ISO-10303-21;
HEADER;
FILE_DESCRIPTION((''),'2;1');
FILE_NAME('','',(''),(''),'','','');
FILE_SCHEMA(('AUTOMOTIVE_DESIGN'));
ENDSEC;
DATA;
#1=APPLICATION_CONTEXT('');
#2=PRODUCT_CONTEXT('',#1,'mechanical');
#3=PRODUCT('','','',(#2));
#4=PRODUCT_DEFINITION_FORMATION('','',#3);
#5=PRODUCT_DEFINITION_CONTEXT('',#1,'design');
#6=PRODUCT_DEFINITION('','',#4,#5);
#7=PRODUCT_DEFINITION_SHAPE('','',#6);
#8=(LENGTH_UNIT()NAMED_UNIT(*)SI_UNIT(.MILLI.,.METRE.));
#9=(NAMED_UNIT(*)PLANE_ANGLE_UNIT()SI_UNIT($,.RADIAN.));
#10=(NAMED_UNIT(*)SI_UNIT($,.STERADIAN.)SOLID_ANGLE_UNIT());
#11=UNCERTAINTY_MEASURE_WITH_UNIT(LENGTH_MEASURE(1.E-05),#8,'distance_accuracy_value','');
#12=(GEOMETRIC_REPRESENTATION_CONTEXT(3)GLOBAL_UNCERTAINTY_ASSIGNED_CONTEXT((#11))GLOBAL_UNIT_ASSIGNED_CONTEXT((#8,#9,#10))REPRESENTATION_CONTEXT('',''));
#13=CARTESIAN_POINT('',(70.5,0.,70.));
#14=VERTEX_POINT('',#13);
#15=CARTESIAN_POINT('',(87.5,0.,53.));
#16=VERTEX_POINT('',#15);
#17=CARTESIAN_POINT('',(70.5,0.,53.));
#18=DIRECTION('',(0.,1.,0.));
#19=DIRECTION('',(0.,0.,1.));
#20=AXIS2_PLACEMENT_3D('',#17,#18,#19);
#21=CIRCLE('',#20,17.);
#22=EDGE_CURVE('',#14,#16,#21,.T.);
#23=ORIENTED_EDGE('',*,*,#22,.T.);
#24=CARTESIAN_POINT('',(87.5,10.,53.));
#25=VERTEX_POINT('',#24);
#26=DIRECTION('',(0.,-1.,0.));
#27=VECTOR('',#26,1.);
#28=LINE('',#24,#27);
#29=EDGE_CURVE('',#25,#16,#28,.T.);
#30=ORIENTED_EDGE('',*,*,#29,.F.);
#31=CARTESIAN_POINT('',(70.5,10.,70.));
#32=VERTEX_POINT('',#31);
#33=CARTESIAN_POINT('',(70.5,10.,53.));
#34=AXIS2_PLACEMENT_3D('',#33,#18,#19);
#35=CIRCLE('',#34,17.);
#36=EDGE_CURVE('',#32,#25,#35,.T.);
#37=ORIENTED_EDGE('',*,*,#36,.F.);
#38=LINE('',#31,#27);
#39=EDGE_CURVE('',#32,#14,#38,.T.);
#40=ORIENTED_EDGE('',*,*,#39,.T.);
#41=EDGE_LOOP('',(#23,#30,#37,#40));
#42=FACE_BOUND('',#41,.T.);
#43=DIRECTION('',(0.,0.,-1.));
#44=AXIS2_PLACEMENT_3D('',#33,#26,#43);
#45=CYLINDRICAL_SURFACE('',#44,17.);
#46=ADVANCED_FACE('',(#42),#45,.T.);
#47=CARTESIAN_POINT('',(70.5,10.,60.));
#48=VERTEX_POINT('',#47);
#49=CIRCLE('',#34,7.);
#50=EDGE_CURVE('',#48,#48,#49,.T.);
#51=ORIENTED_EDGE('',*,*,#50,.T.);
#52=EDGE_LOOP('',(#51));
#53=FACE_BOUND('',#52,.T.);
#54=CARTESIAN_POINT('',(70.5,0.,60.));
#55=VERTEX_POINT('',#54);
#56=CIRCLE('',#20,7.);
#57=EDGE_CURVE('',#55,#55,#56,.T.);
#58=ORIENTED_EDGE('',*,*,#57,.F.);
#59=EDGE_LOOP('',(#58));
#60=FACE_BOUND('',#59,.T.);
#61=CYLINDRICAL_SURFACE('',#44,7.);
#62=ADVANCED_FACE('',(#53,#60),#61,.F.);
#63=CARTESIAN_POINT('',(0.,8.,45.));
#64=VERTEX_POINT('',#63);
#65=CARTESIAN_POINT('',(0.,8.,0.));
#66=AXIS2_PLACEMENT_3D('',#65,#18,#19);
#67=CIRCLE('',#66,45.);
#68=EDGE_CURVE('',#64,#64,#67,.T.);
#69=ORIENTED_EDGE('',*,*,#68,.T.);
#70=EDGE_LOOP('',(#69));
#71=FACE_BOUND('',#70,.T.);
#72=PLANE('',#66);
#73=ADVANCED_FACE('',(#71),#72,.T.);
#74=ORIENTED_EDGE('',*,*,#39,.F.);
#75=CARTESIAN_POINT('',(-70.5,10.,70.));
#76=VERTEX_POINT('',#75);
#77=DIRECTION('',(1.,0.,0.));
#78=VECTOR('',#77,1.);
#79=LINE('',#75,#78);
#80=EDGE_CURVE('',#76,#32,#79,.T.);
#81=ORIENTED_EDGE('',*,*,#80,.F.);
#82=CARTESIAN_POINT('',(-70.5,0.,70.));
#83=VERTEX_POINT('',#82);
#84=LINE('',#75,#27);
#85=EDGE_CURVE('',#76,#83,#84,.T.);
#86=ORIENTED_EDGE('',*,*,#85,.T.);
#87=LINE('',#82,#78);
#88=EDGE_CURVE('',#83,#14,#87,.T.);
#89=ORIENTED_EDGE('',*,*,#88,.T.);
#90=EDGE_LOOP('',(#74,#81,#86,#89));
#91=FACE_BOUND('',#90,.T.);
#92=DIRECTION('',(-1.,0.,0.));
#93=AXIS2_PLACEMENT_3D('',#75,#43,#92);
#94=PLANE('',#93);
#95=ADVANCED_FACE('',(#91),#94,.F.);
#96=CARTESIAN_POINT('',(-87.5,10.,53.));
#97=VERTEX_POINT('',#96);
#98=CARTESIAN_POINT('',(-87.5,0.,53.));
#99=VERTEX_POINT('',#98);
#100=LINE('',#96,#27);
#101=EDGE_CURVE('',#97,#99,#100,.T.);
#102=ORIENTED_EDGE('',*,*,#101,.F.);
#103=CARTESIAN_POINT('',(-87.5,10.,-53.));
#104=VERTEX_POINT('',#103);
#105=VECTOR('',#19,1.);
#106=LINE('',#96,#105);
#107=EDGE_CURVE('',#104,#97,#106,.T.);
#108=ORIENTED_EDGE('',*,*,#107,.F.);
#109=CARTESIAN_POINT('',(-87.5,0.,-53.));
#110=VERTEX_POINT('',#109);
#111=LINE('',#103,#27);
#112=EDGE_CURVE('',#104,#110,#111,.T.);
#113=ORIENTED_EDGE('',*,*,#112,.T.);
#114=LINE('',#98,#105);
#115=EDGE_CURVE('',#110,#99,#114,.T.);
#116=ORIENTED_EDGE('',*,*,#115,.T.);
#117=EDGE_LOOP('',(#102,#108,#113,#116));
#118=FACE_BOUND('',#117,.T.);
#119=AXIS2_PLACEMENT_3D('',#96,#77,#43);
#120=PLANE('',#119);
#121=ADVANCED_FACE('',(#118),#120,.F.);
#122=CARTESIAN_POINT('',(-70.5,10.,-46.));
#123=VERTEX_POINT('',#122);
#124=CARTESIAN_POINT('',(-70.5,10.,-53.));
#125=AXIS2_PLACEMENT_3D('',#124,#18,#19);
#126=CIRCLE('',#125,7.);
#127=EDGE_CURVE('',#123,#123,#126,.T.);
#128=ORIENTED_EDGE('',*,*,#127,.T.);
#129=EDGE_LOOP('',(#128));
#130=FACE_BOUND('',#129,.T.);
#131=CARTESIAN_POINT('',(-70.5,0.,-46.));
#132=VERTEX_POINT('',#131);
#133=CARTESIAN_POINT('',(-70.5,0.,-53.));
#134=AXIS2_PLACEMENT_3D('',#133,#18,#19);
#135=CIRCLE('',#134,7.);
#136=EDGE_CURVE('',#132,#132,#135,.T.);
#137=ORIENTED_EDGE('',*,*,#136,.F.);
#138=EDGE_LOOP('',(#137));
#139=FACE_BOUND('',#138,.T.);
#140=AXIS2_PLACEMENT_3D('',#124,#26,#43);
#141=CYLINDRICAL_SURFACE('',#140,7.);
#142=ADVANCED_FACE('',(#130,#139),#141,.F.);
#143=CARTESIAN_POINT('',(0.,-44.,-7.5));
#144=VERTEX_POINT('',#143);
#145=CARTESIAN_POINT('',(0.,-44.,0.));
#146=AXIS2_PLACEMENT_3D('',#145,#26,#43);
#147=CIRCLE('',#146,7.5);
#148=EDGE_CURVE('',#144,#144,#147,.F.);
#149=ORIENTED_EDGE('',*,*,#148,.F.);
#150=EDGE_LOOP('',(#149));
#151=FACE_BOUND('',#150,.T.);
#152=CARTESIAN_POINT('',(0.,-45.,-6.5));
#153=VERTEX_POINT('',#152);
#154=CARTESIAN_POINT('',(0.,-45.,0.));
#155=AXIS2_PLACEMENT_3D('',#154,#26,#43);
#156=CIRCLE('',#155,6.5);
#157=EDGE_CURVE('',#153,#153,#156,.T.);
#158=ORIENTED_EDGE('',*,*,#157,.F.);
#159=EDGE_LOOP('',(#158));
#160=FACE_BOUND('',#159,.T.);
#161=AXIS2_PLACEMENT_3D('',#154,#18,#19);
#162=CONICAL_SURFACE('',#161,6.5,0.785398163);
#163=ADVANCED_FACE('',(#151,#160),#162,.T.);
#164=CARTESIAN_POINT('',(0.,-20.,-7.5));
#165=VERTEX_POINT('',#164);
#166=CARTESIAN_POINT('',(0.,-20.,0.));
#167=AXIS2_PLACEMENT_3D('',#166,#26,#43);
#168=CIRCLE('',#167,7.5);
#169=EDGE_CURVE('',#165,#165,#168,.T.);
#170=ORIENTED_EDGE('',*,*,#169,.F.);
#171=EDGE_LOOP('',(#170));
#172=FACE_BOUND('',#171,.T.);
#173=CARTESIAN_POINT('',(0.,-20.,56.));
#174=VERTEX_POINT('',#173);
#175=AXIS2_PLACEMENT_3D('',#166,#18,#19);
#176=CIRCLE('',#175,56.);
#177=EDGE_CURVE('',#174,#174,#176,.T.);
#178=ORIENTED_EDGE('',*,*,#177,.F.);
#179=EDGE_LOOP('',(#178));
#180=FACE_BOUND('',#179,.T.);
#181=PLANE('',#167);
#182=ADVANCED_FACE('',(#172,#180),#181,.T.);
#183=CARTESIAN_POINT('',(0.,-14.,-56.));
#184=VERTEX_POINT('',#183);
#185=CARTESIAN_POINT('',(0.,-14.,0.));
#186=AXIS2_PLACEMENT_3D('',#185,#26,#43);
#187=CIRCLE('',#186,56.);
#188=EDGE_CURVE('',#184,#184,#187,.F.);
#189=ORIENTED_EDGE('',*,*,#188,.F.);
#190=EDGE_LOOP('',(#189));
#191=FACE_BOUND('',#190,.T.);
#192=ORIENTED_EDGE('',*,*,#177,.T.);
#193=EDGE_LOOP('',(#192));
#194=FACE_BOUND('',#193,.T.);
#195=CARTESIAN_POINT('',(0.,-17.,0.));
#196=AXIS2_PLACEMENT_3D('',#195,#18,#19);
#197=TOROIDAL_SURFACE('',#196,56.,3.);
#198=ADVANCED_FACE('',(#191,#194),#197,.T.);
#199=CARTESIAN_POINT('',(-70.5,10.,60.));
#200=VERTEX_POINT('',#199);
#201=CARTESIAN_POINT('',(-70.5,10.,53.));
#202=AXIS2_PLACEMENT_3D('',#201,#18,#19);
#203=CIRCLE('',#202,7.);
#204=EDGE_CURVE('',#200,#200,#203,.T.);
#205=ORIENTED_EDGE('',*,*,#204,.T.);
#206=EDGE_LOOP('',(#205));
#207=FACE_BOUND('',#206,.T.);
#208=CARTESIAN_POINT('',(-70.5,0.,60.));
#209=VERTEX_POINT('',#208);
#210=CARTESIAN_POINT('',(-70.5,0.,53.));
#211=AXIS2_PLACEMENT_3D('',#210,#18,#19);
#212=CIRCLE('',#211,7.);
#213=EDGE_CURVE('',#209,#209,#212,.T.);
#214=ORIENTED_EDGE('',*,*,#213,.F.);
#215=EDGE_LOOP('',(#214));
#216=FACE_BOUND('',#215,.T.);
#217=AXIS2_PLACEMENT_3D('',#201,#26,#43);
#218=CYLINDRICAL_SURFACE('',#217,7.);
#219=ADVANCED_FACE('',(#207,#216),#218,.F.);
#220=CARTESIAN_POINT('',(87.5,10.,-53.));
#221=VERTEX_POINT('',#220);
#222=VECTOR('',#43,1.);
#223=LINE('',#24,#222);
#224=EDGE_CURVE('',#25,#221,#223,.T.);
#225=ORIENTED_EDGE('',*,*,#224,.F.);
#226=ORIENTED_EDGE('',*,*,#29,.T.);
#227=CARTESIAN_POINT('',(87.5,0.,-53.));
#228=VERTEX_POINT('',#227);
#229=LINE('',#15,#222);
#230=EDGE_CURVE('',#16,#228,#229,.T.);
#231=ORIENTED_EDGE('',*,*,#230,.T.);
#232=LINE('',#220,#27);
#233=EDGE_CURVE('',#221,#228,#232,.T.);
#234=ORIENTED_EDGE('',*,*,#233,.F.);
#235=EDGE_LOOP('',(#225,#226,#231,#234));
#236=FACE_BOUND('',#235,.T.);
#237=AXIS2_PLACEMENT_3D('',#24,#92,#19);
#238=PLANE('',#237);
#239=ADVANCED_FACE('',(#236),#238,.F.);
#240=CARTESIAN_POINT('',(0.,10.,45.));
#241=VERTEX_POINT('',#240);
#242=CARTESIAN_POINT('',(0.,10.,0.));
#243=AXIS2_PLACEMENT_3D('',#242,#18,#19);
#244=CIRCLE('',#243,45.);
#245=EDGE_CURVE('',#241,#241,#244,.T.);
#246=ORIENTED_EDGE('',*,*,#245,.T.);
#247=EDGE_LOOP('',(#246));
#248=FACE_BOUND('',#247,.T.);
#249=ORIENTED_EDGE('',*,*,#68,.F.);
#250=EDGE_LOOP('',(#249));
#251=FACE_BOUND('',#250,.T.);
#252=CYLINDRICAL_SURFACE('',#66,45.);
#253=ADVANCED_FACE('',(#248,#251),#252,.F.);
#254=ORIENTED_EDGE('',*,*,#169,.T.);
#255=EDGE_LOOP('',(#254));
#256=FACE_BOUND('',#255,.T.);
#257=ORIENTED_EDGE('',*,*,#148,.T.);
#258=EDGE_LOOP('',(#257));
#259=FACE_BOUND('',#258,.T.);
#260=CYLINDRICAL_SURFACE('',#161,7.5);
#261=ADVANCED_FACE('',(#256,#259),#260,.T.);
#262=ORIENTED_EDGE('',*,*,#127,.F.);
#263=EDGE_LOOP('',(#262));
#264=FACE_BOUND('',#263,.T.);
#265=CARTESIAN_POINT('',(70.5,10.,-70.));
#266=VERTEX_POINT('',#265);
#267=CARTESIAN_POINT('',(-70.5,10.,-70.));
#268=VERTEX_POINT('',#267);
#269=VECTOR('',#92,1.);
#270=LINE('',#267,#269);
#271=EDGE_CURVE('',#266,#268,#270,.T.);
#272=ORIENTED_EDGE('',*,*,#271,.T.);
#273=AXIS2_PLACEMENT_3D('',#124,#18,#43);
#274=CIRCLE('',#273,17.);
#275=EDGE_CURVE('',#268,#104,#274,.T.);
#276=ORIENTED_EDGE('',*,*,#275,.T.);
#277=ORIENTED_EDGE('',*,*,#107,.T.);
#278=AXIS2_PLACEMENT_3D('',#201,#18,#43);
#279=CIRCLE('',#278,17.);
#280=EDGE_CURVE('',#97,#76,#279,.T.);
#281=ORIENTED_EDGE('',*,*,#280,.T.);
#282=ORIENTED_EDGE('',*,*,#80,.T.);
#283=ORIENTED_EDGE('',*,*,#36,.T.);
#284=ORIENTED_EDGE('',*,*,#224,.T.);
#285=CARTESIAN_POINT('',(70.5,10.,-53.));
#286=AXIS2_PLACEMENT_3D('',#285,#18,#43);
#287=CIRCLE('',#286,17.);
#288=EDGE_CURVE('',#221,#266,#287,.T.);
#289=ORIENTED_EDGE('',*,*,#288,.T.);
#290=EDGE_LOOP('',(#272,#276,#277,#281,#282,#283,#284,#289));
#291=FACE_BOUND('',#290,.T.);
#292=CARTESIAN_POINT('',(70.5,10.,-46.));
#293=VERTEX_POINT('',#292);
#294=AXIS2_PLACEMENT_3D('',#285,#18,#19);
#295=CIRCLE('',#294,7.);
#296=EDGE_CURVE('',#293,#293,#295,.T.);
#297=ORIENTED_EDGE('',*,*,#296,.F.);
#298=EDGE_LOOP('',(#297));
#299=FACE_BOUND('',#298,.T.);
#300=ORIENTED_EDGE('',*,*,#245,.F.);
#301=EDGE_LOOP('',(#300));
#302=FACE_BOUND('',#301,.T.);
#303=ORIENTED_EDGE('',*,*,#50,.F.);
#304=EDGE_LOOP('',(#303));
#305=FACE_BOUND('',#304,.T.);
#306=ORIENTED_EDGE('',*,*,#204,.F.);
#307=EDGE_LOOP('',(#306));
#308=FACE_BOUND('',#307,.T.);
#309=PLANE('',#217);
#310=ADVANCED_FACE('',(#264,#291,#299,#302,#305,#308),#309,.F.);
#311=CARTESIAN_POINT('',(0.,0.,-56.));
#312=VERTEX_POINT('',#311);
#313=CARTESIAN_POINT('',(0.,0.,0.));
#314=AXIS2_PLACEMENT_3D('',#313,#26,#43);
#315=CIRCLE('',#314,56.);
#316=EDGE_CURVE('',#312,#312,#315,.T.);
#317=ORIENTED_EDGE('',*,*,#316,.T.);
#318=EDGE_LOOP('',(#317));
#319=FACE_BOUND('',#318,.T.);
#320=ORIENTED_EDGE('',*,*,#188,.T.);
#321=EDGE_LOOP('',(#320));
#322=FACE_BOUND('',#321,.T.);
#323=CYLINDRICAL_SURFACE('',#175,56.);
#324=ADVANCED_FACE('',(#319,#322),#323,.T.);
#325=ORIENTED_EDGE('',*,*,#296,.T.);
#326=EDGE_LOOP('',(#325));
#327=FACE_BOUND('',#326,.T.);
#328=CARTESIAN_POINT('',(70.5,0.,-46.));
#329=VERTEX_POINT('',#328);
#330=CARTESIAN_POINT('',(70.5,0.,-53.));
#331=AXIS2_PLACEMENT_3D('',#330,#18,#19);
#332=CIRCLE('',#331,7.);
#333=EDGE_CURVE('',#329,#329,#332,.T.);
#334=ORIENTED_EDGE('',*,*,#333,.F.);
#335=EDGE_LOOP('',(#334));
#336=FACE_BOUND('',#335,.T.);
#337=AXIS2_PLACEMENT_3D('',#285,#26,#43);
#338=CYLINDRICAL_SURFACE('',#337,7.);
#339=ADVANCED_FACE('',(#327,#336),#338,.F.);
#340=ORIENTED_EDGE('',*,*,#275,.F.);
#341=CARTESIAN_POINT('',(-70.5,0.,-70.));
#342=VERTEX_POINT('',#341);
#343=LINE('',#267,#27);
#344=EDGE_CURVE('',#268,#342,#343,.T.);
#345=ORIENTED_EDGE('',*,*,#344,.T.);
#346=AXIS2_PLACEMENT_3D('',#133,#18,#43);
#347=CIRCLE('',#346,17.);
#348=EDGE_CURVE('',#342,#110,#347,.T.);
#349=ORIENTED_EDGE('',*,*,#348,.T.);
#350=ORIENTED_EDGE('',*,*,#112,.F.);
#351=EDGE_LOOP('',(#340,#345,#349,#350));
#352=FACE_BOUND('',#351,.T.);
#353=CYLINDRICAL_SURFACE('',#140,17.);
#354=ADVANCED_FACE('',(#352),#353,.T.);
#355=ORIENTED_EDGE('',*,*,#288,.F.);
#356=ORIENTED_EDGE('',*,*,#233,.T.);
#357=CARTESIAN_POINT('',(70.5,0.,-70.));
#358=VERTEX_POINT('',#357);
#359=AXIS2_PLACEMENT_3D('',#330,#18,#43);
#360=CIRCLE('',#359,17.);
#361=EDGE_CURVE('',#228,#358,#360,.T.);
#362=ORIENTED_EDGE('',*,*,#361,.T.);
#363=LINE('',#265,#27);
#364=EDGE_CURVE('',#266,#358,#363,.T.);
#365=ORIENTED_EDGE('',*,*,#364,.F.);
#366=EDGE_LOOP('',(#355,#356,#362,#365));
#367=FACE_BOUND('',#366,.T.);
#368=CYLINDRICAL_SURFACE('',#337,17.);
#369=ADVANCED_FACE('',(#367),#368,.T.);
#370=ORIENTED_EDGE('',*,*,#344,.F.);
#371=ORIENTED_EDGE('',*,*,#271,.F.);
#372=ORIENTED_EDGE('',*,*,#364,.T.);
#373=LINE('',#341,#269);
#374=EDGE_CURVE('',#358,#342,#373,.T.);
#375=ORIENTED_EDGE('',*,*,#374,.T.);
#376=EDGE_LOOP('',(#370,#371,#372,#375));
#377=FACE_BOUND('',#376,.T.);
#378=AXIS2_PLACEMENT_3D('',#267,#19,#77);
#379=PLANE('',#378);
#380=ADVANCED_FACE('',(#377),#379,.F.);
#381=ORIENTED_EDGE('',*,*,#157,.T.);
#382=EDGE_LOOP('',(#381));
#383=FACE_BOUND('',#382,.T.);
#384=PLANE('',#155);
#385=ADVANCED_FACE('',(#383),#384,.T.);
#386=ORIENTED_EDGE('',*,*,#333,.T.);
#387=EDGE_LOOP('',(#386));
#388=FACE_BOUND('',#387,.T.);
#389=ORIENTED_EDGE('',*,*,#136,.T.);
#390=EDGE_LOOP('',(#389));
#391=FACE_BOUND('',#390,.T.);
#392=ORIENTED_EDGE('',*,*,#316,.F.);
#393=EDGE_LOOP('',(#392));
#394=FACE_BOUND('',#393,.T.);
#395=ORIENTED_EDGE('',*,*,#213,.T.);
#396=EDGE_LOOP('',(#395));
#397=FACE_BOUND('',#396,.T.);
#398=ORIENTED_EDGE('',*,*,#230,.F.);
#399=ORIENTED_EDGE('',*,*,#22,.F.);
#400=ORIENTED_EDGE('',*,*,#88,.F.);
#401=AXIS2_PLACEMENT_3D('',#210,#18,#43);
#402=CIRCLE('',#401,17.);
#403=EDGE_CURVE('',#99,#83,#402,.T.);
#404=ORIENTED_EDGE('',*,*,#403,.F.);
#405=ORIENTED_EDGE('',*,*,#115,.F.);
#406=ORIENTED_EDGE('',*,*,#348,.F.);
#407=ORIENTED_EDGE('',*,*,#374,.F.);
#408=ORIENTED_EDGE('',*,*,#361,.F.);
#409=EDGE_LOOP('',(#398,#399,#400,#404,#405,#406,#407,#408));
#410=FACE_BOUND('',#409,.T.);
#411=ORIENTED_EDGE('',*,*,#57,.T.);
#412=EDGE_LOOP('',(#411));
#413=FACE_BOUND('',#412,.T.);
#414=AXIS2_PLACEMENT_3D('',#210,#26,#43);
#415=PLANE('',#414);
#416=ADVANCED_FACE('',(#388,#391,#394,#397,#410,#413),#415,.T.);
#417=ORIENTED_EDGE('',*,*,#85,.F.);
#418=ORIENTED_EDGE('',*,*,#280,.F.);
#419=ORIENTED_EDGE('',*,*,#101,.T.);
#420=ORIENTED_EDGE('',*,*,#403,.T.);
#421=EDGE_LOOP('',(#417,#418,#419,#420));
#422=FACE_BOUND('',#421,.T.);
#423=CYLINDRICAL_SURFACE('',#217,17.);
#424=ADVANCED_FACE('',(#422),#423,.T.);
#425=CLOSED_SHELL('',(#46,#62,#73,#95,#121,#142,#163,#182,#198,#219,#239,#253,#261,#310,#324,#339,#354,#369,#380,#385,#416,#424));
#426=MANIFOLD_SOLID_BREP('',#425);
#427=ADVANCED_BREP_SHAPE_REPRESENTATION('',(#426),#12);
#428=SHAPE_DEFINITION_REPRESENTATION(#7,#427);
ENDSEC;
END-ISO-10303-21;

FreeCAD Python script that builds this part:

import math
import FreeCAD as App
import Part
import Sketcher


def edges_at(feature, points):
    """Names of the edges that pass closest to the given points."""
    edges = feature.Shape.Edges
    near = lambda p: min(range(len(edges)), key=lambda i: edges[i].distToShape(Part.Vertex(*p))[0])
    return sorted({f"Edge{near(p) + 1}" for p in points})

doc = App.newDocument("Part")
body = doc.addObject("PartDesign::Body", "Body")

sketch1 = doc.addObject("Sketcher::SketchObject", "Sketch")
body.addObject(sketch1)
sketch1.AttachmentSupport = (doc.XZ_Plane, [""])
sketch1.MapMode = "FlatFace"
sketch1.addGeometry([
    Part.LineSegment(App.Vector(-70.5, 70, 0), App.Vector(70.5, 70, 0)),
    Part.ArcOfCircle(Part.Circle(App.Vector(70.5, 53, 0), App.Vector(0, 0, 1), 17), math.radians(0), math.radians(90)),
    Part.LineSegment(App.Vector(87.5, 53, 0), App.Vector(87.5, -53, 0)),
    Part.ArcOfCircle(Part.Circle(App.Vector(70.5, -53, 0), App.Vector(0, 0, 1), 17), math.radians(-90), math.radians(0)),
    Part.LineSegment(App.Vector(70.5, -70, 0), App.Vector(-70.5, -70, 0)),
    Part.ArcOfCircle(Part.Circle(App.Vector(-70.5, -53, 0), App.Vector(0, 0, 1), 17), math.radians(-180), math.radians(-90)),
    Part.LineSegment(App.Vector(-87.5, -53, 0), App.Vector(-87.5, 53, 0)),
    Part.ArcOfCircle(Part.Circle(App.Vector(-70.5, 53, 0), App.Vector(0, 0, 1), 17), math.radians(90), math.radians(180)),
    Part.Circle(App.Vector(-70.5, 53, 0), App.Vector(0, 0, 1), 7),
    Part.Circle(App.Vector(70.5, 53, 0), App.Vector(0, 0, 1), 7),
    Part.Circle(App.Vector(-70.5, -53, 0), App.Vector(0, 0, 1), 7),
    Part.Circle(App.Vector(70.5, -53, 0), App.Vector(0, 0, 1), 7),
], False)
sketch1.addConstraint([
    Sketcher.Constraint("Tangent", 0, 2, 1, 2),
    Sketcher.Constraint("Tangent", 1, 1, 2, 1),
    Sketcher.Constraint("Tangent", 2, 2, 3, 2),
    Sketcher.Constraint("Tangent", 3, 1, 4, 1),
    Sketcher.Constraint("Tangent", 4, 2, 5, 2),
    Sketcher.Constraint("Tangent", 5, 1, 6, 1),
    Sketcher.Constraint("Tangent", 6, 2, 7, 2),
    Sketcher.Constraint("Tangent", 7, 1, 0, 1),
    Sketcher.Constraint("Horizontal", 0),
    Sketcher.Constraint("Vertical", 2),
    Sketcher.Constraint("Horizontal", 4),
    Sketcher.Constraint("Vertical", 6),
    Sketcher.Constraint("Coincident", 8, 3, 7, 3),
    Sketcher.Constraint("Coincident", 9, 3, 1, 3),
    Sketcher.Constraint("Coincident", 10, 3, 5, 3),
    Sketcher.Constraint("Coincident", 11, 3, 3, 3),
    Sketcher.Constraint("Equal", 1, 3),
    Sketcher.Constraint("Equal", 3, 5),
    Sketcher.Constraint("Equal", 5, 7),
    Sketcher.Constraint("Equal", 8, 9),
    Sketcher.Constraint("Equal", 9, 10),
    Sketcher.Constraint("Equal", 10, 11),
    Sketcher.Constraint("Symmetric", 1, 3, 5, 3, -1, 1),
    Sketcher.Constraint("Diameter", 8, 14.0),
    Sketcher.Constraint("Radius", 1, 17.0),
    Sketcher.Constraint("DistanceX", 0, 1, 0, 2, 141.0),
    Sketcher.Constraint("DistanceY", 2, 2, 2, 1, 106.0),
])
pad1 = doc.addObject("PartDesign::Pad", "Pad")
body.addObject(pad1)
pad1.Profile = sketch1
pad1.Length = 10
pad1.Reversed = True

sketch2 = doc.addObject("Sketcher::SketchObject", "Sketch001")
body.addObject(sketch2)
sketch2.AttachmentSupport = (doc.XZ_Plane, [""])
sketch2.MapMode = "FlatFace"
sketch2.AttachmentOffset = App.Placement(App.Vector(0, 0, -10), App.Rotation())
sketch2.addGeometry(Part.Circle(App.Vector(0, 0, 0), App.Vector(0, 0, 1), 45), False)
sketch2.addConstraint([
    Sketcher.Constraint("Coincident", 0, 3, -1, 1),
    Sketcher.Constraint("Diameter", 0, 90.0),
])
pocket1 = doc.addObject("PartDesign::Pocket", "Pocket")
body.addObject(pocket1)
pocket1.Profile = sketch2
pocket1.Length = 2
pocket1.Reversed = True

sketch3 = doc.addObject("Sketcher::SketchObject", "Sketch002")
body.addObject(sketch3)
sketch3.AttachmentSupport = (doc.XZ_Plane, [""])
sketch3.MapMode = "FlatFace"
sketch3.addGeometry(Part.Circle(App.Vector(0, 0, 0), App.Vector(0, 0, 1), 56), False)
sketch3.addConstraint([
    Sketcher.Constraint("Coincident", 0, 3, -1, 1),
    Sketcher.Constraint("Diameter", 0, 112.0),
])
pad2 = doc.addObject("PartDesign::Pad", "Pad001")
body.addObject(pad2)
pad2.Profile = sketch3
pad2.Length = 20

sketch4 = doc.addObject("Sketcher::SketchObject", "Sketch003")
body.addObject(sketch4)
sketch4.AttachmentSupport = (doc.YZ_Plane, [""])
sketch4.MapMode = "FlatFace"
sketch4.addGeometry(Part.Circle(App.Vector(-17, 56, 0), App.Vector(0, 0, 1), 3), False)
sketch4.addConstraint([
    Sketcher.Constraint("Diameter", 0, 6.0),
    Sketcher.Constraint("DistanceX", 0, 3, -1, 1, 17.0),
    Sketcher.Constraint("DistanceY", -1, 1, 0, 3, 56.0),
])
revolution = doc.addObject("PartDesign::Revolution", "Revolution")
body.addObject(revolution)
revolution.Profile = sketch4
revolution.ReferenceAxis = (sketch4, ["H_Axis"])
revolution.Angle = 360

sketch5 = doc.addObject("Sketcher::SketchObject", "Sketch004")
body.addObject(sketch5)
sketch5.AttachmentSupport = (doc.XZ_Plane, [""])
sketch5.MapMode = "FlatFace"
sketch5.AttachmentOffset = App.Placement(App.Vector(0, 0, 20), App.Rotation())
sketch5.addGeometry(Part.Circle(App.Vector(0, 0, 0), App.Vector(0, 0, 1), 7.5), False)
sketch5.addConstraint([
    Sketcher.Constraint("Coincident", 0, 3, -1, 1),
    Sketcher.Constraint("Diameter", 0, 15.0),
])
pad3 = doc.addObject("PartDesign::Pad", "Pad002")
body.addObject(pad3)
pad3.Profile = sketch5
pad3.Length = 25
doc.recompute()

chamfer = doc.addObject("PartDesign::Chamfer", "Chamfer")
body.addObject(chamfer)
chamfer.Base = (pad3, edges_at(pad3, [(-7.5, -45, 0)]))
chamfer.Size = 1

doc.recompute()
